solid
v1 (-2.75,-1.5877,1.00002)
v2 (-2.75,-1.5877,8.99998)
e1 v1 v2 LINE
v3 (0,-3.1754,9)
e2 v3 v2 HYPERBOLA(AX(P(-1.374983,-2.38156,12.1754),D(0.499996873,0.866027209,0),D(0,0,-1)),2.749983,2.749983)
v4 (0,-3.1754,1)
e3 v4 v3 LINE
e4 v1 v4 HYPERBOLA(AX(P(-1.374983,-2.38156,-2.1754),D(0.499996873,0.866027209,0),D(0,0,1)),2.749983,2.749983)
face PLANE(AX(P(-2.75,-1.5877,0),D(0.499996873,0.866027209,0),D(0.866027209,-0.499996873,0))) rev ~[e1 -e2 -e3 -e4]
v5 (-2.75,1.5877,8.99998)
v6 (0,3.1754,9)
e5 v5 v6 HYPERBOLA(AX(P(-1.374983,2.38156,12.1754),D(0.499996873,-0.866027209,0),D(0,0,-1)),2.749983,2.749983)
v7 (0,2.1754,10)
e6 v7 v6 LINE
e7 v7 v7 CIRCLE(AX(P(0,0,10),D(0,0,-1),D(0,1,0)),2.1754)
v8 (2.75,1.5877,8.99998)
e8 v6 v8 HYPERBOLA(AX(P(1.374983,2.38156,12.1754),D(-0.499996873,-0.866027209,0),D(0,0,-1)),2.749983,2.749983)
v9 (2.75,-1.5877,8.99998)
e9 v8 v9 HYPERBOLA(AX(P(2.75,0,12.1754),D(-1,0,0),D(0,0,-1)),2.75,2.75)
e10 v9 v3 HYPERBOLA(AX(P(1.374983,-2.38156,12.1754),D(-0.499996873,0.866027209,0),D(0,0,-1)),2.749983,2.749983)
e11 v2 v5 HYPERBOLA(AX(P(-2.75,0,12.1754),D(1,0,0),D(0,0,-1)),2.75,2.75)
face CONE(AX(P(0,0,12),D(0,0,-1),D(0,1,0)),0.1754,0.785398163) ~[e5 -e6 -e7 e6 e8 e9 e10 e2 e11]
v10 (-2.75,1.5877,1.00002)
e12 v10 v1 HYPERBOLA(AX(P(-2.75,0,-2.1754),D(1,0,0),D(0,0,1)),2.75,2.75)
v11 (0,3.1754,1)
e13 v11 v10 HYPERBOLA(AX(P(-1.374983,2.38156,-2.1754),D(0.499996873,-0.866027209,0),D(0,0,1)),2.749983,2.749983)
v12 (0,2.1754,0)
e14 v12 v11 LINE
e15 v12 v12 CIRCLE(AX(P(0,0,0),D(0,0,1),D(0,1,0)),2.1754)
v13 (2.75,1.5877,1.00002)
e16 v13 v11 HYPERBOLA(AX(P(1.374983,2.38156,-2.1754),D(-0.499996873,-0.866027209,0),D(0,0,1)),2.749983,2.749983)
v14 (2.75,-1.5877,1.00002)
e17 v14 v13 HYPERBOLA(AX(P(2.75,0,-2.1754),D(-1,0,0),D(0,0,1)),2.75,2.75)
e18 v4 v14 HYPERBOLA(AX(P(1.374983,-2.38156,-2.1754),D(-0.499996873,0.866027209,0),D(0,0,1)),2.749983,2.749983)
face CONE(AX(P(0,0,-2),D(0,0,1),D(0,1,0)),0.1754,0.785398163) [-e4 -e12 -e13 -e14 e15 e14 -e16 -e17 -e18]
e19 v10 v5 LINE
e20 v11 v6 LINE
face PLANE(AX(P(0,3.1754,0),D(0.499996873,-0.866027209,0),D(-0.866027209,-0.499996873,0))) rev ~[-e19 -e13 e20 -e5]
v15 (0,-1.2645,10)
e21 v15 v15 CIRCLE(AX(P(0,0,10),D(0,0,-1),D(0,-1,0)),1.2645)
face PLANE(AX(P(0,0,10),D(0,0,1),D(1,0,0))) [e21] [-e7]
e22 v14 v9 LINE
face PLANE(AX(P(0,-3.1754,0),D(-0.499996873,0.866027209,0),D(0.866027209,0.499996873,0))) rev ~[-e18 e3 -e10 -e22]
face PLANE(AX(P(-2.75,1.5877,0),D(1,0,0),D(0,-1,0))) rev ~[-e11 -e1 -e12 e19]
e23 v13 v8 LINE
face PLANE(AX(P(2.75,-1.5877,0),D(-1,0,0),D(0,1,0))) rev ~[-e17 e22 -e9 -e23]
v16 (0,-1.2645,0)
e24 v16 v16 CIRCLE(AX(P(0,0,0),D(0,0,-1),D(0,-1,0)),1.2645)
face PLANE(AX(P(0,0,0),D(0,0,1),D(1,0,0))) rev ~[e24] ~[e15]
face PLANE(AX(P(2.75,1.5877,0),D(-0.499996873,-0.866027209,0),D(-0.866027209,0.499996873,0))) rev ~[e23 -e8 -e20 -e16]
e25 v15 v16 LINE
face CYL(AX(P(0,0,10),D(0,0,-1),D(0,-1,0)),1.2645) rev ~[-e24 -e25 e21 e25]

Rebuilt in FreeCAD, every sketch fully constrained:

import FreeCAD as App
import Part
import Sketcher
from FreeCAD import Vector
Q = App.Units.Quantity

doc = App.newDocument("Part")
body = doc.addObject("PartDesign::Body", "Body")

# Sketch on XY plane
sketch1 = body.newObject("Sketcher::SketchObject", "Sketch")
sketch1.AttachmentSupport = (doc.getObject("XY_Plane"), [""])
sketch1.MapMode = "FlatFace"
sketch1.addGeometry([
    Part.LineSegment(Vector(2.8, -1.6, 0), Vector(2.8, 1.6, 0)),  # 0
    Part.LineSegment(Vector(2.8, 1.6, 0), Vector(0, 3.2, 0)),  # 1
    Part.LineSegment(Vector(0, 3.2, 0), Vector(-2.8, 1.6, 0)),  # 2
    Part.LineSegment(Vector(-2.8, 1.6, 0), Vector(-2.8, -1.6, 0)),  # 3
    Part.LineSegment(Vector(-2.8, -1.6, 0), Vector(0, -3.2, 0)),  # 4
    Part.LineSegment(Vector(0, -3.2, 0), Vector(2.8, -1.6, 0)),  # 5
], False)
sketch1.addConstraint([
    Sketcher.Constraint("Coincident", 0, 2, 1, 1),
    Sketcher.Constraint("Coincident", 1, 2, 2, 1),
    Sketcher.Constraint("Coincident", 2, 2, 3, 1),
    Sketcher.Constraint("Coincident", 3, 2, 4, 1),
    Sketcher.Constraint("Coincident", 4, 2, 5, 1),
    Sketcher.Constraint("Coincident", 5, 2, 0, 1),
    Sketcher.Constraint("Vertical", 0),
    Sketcher.Constraint("Vertical", 3),
    Sketcher.Constraint("Symmetric", 0, 2, 3, 2, -1, 1),
    Sketcher.Constraint("Symmetric", 1, 2, 4, 2, -1, 1),
    Sketcher.Constraint("PointOnObject", 1, 2, -2),
    Sketcher.Constraint("Parallel", 2, 5),
    Sketcher.Constraint("Horizontal", 0, 2, 2, 2),
    Sketcher.Constraint("DistanceX", 2, 2, 0, 2, Q("5.5 mm")),
    Sketcher.Constraint("Angle", 1, Q("150.0002 deg")),
    Sketcher.Constraint("DistanceY", 0, 1, 0, 2, Q("3.1754 mm")),
])
pad1 = body.newObject("PartDesign::Pad", "Pad")
pad1.Profile = sketch1
pad1.Length = 10

# Sketch on YZ plane
sketch2 = body.newObject("Sketcher::SketchObject", "Sketch001")
sketch2.AttachmentSupport = (doc.getObject("YZ_Plane"), [""])
sketch2.MapMode = "FlatFace"
sketch2.addGeometry([
    Part.LineSegment(Vector(0.2, 12, 0), Vector(3.7, 8.5, 0)),  # 0
    Part.LineSegment(Vector(3.7, 8.5, 0), Vector(3.7, 12, 0)),  # 1
    Part.LineSegment(Vector(3.7, 12, 0), Vector(0.2, 12, 0)),  # 2
    Part.LineSegment(Vector(3.7, 1.5, 0), Vector(0.2, -2, 0)),  # 3
    Part.LineSegment(Vector(0.2, -2, 0), Vector(3.7, -2, 0)),  # 4
    Part.LineSegment(Vector(3.7, -2, 0), Vector(3.7, 1.5, 0)),  # 5
], False)
sketch2.addConstraint([
    Sketcher.Constraint("Coincident", 0, 2, 1, 1),
    Sketcher.Constraint("Coincident", 1, 2, 2, 1),
    Sketcher.Constraint("Coincident", 2, 2, 0, 1),
    Sketcher.Constraint("Coincident", 3, 2, 4, 1),
    Sketcher.Constraint("Coincident", 4, 2, 5, 1),
    Sketcher.Constraint("Coincident", 5, 2, 3, 1),
    Sketcher.Constraint("Vertical", 1),
    Sketcher.Constraint("Horizontal", 2),
    Sketcher.Constraint("Horizontal", 4),
    Sketcher.Constraint("Vertical", 5),
    Sketcher.Constraint("Perpendicular", 0, 3),
    Sketcher.Constraint("Vertical", 2, 2, 3, 2),
    Sketcher.Constraint("Vertical", 1, 2, 4, 2),
    Sketcher.Constraint("Equal", 4, 1),
    Sketcher.Constraint("DistanceX", 2, 2, 2, 1, Q("3.5 mm")),
    Sketcher.Constraint("DistanceY", 3, 2, -1, 1, Q("2 mm")),
    Sketcher.Constraint("DistanceY", -1, 1, 1, 2, Q("12 mm")),
    Sketcher.Constraint("DistanceX", -1, 1, 0, 2, Q("3.6754 mm")),
])
groove = body.newObject("PartDesign::Groove", "Groove")
groove.Profile = sketch2
groove.ReferenceAxis = (sketch2, ["V_Axis"])
groove.Angle = 360

# Sketch on XY plane
sketch3 = body.newObject("Sketcher::SketchObject", "Sketch002")
sketch3.AttachmentSupport = (doc.getObject("XY_Plane"), [""])
sketch3.MapMode = "FlatFace"
sketch3.AttachmentOffset = App.Placement(Vector(0, 0, 10), App.Rotation())
sketch3.addGeometry(Part.Circle(Vector(0, 0, 0), Vector(0, 0, 1), 1.3), False)
sketch3.addConstraint([
    Sketcher.Constraint("Coincident", 0, 3, -1, 1),
    Sketcher.Constraint("Diameter", 0, Q("2.529 mm")),
])
doc.recompute()
hole = body.newObject("PartDesign::Hole", "Hole")
hole.Profile = sketch3
hole.ThreadType = "None"
hole.Diameter = 2.529
hole.DepthType = "ThroughAll"

doc.recompute()
